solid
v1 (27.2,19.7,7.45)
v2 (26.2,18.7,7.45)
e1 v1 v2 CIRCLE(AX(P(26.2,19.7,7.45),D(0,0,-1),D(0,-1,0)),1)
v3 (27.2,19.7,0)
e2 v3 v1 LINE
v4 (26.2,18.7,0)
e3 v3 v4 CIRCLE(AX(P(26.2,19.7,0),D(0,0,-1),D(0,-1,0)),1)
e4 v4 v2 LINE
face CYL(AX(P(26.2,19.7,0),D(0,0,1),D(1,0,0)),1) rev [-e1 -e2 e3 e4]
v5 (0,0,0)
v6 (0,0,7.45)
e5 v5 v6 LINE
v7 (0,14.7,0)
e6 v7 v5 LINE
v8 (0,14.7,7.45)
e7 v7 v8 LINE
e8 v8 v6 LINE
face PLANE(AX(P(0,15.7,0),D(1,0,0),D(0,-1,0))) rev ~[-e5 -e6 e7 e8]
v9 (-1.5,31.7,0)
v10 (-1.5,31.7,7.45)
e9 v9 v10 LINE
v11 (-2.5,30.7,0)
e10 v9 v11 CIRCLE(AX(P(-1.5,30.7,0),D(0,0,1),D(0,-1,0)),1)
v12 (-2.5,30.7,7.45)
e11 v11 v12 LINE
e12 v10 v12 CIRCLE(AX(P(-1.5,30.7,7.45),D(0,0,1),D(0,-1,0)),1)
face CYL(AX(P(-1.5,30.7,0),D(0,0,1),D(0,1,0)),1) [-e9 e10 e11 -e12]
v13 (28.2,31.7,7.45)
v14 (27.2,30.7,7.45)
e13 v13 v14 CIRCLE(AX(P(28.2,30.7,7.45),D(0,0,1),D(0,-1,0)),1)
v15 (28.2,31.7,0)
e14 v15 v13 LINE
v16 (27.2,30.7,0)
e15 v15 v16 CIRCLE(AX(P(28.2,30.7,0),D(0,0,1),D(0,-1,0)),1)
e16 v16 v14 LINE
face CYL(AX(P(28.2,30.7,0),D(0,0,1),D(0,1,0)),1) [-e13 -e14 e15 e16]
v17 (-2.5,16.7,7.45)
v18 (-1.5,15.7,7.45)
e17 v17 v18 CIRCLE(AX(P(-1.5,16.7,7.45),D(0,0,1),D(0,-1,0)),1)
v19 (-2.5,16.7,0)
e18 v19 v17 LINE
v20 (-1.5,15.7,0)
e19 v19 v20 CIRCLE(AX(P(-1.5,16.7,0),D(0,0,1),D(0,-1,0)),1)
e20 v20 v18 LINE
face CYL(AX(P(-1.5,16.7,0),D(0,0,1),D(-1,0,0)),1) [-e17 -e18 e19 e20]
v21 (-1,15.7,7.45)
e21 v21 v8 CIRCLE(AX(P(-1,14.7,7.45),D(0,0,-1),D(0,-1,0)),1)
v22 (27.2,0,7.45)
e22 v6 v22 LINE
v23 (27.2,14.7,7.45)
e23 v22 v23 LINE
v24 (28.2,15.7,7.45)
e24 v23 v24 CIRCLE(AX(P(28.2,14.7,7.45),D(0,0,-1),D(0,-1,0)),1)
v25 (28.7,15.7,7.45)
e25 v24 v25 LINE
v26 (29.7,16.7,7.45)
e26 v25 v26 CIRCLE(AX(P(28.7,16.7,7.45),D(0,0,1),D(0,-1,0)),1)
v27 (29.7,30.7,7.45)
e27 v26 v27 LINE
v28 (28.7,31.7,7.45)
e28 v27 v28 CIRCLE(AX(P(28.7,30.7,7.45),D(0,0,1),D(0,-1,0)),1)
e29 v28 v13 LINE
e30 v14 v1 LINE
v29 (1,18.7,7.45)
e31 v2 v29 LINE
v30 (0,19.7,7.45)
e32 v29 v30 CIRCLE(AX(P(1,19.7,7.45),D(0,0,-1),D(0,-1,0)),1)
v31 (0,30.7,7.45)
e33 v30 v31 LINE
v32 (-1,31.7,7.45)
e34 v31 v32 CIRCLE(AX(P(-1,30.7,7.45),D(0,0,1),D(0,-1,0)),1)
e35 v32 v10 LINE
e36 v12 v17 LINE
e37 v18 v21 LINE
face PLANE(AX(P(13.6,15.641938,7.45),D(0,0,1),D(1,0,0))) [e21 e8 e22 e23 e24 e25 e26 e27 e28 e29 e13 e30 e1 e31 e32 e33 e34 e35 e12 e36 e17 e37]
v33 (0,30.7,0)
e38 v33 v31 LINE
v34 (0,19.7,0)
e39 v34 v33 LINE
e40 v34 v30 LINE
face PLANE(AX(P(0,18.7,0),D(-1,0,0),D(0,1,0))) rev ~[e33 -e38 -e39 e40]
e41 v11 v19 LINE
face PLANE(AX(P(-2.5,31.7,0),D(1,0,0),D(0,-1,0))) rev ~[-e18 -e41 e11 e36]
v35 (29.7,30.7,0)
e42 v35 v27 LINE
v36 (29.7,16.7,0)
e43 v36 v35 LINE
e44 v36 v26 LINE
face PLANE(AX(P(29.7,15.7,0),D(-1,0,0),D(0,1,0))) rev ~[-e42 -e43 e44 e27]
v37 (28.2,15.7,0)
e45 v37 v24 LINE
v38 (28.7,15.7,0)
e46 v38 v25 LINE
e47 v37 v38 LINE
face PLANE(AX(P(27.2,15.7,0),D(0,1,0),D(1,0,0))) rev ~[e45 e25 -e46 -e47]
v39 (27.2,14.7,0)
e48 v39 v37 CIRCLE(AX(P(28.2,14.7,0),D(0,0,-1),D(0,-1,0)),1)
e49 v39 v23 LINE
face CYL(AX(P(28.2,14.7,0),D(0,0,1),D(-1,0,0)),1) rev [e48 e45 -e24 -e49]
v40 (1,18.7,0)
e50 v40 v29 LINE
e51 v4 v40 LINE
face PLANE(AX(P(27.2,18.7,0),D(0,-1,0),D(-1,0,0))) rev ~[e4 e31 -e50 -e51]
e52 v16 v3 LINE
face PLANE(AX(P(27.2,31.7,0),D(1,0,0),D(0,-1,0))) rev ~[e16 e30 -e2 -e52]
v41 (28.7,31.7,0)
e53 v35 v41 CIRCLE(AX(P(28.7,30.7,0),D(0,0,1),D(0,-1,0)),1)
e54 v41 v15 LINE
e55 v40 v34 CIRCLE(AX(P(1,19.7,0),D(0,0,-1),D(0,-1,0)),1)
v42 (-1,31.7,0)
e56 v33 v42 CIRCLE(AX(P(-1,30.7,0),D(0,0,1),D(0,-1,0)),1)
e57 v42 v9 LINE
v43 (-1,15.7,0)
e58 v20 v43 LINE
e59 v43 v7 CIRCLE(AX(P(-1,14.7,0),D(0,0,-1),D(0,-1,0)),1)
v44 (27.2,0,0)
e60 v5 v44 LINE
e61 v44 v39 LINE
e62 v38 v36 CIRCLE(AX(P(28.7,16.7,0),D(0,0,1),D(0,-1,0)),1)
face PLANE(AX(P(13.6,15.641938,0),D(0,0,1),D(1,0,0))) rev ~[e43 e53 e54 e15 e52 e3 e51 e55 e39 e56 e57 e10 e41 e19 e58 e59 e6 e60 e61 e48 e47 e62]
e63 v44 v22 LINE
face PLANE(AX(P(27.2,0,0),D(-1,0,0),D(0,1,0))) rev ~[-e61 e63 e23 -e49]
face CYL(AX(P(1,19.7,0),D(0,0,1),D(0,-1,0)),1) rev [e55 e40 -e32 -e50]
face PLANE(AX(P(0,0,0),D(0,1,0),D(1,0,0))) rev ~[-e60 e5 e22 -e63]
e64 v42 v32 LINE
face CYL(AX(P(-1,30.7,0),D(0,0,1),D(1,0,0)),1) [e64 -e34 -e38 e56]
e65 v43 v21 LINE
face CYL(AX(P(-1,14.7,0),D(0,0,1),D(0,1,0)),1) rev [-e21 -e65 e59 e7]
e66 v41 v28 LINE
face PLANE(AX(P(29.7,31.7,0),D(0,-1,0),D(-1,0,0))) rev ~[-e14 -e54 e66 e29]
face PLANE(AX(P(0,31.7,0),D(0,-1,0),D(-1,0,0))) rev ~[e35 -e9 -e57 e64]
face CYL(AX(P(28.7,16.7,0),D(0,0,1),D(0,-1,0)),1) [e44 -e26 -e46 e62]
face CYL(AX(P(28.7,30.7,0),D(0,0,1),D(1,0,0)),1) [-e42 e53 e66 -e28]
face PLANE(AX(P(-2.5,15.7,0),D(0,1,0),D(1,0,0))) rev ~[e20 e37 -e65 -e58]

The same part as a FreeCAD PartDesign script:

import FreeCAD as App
import Part
import Sketcher

V = App.Vector


def edges_at(feature, points):
    """Names of the edges that pass closest to the given points."""
    edges = feature.Shape.Edges
    near = lambda p: min(range(len(edges)), key=lambda i: edges[i].distToShape(Part.Vertex(*p))[0])
    return sorted({f"Edge{near(p) + 1}" for p in points})

doc = App.newDocument("Part")
params = doc.addObject("Spreadsheet::Sheet", "Params")
for row, (alias, value) in enumerate([
    ("sketch1_height", "16 mm"),
    ("sketch1_height2", "13 mm"),
    ("sketch1_width", "27.2 mm"),
    ("sketch1_width2", "2.5 mm"),
    ("sketch1_height3", "15.7 mm"),
    ("pad1_length", "7.45 mm"),
    ("fillet_radius", "1 mm"),
], start=1):
    params.set(f"A{row}", alias)
    params.set(f"B{row}", "=" + value)
    params.setAlias(f"B{row}", alias)

body = doc.addObject("PartDesign::Body", "Body")

# Sketch on XY plane
sketch1 = body.newObject("Sketcher::SketchObject", "Sketch")
sketch1.AttachmentSupport = (doc.getObject("XY_Plane"), [""])
sketch1.MapMode = "FlatFace"
sketch1.addGeometry([
    Part.LineSegment(V(0, 0, 0), V(27.2, 0, 0)),  # 0
    Part.LineSegment(V(27.2, 0, 0), V(27.2, 15.7, 0)),  # 1
    Part.LineSegment(V(27.2, 15.7, 0), V(29.7, 15.7, 0)),  # 2
    Part.LineSegment(V(29.7, 15.7, 0), V(29.7, 31.7, 0)),  # 3
    Part.LineSegment(V(29.7, 31.7, 0), V(27.2, 31.7, 0)),  # 4
    Part.LineSegment(V(27.2, 31.7, 0), V(27.2, 18.7, 0)),  # 5
    Part.LineSegment(V(27.2, 18.7, 0), V(0, 18.7, 0)),  # 6
    Part.LineSegment(V(0, 18.7, 0), V(0, 31.7, 0)),  # 7
    Part.LineSegment(V(0, 31.7, 0), V(-2.5, 31.7, 0)),  # 8
    Part.LineSegment(V(-2.5, 31.7, 0), V(-2.5, 15.7, 0)),  # 9
    Part.LineSegment(V(-2.5, 15.7, 0), V(0, 15.7, 0)),  # 10
    Part.LineSegment(V(0, 15.7, 0), V(0, 0, 0)),  # 11
], False)
sketch1.addConstraint([
    Sketcher.Constraint("Coincident", 0, 2, 1, 1),
    Sketcher.Constraint("Coincident", 1, 2, 2, 1),
    Sketcher.Constraint("Coincident", 2, 2, 3, 1),
    Sketcher.Constraint("Coincident", 3, 2, 4, 1),
    Sketcher.Constraint("Coincident", 4, 2, 5, 1),
    Sketcher.Constraint("Coincident", 5, 2, 6, 1),
    Sketcher.Constraint("Coincident", 6, 2, 7, 1),
    Sketcher.Constraint("Coincident", 7, 2, 8, 1),
    Sketcher.Constraint("Coincident", 8, 2, 9, 1),
    Sketcher.Constraint("Coincident", 9, 2, 10, 1),
    Sketcher.Constraint("Coincident", 10, 2, 11, 1),
    Sketcher.Constraint("Coincident", 11, 2, 0, 1),
    Sketcher.Constraint("Horizontal", 0),
    Sketcher.Constraint("Vertical", 1),
    Sketcher.Constraint("Horizontal", 2),
    Sketcher.Constraint("Vertical", 3),
    Sketcher.Constraint("Horizontal", 4),
    Sketcher.Constraint("Vertical", 5),
    Sketcher.Constraint("Horizontal", 6),
    Sketcher.Constraint("Vertical", 7),
    Sketcher.Constraint("Horizontal", 8),
    Sketcher.Constraint("Vertical", 9),
    Sketcher.Constraint("Horizontal", 10),
    Sketcher.Constraint("Vertical", 11),
    Sketcher.Constraint("Coincident", 11, 2, -1, 1),
    Sketcher.Constraint("PointOnObject", 6, 2, -2),
    Sketcher.Constraint("Horizontal", 4, 2, 7, 2),
    Sketcher.Constraint("Horizontal", 2, 2, 9, 2),
    Sketcher.Constraint("Vertical", 1, 2, 4, 2),
    Sketcher.Constraint("Equal", 4, 8),
    Sketcher.Constraint("DistanceY", 3, 1, 3, 2, 16.0),
    Sketcher.Constraint("DistanceY", 5, 2, 5, 1, 13.0),
    Sketcher.Constraint("DistanceX", 0, 1, 0, 2, 27.2),
    Sketcher.Constraint("DistanceX", 2, 1, 2, 2, 2.5),
    Sketcher.Constraint("DistanceY", 1, 1, 1, 2, 15.7),
])
sketch1.setExpression("Constraints[30]", "Params.sketch1_height")
sketch1.setExpression("Constraints[31]", "Params.sketch1_height2")
sketch1.setExpression("Constraints[32]", "Params.sketch1_width")
sketch1.setExpression("Constraints[33]", "Params.sketch1_width2")
sketch1.setExpression("Constraints[34]", "Params.sketch1_height3")
pad1 = body.newObject("PartDesign::Pad", "Pad")
pad1.Profile = sketch1
pad1.setExpression("Length", "Params.pad1_length")
doc.recompute()

fillet = body.newObject("PartDesign::Fillet", "Fillet")
fillet.Base = (pad1, edges_at(pad1, [
    (0, 18.7, 3.725),
    (0, 31.7, 3.725),
    (-2.5, 31.7, 3.725),
    (27.2, 31.7, 3.725),
    (29.7, 31.7, 3.725),
    (29.7, 15.7, 3.725),
    (27.2, 18.7, 3.725),
    (-2.5, 15.7, 3.725),
    (0, 15.7, 3.725),
    (27.2, 15.7, 3.725),
]))
fillet.setExpression("Radius", "Params.fillet_radius")

doc.recompute()
